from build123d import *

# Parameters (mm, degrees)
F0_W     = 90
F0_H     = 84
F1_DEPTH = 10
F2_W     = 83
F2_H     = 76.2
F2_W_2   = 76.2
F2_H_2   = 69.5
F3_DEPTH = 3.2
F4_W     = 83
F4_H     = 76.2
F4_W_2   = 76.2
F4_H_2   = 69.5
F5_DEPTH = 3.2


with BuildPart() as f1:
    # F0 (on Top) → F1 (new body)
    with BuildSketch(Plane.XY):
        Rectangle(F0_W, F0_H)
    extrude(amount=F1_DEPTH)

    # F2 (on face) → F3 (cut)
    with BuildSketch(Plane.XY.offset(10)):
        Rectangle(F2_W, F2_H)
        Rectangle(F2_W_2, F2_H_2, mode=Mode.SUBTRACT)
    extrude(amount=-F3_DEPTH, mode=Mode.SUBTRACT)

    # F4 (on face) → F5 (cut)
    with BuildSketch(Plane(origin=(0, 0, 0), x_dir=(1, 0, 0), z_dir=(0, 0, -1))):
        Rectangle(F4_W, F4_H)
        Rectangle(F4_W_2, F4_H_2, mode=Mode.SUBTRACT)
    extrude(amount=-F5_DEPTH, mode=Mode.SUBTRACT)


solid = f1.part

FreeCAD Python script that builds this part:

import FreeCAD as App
import Part
import Sketcher
from FreeCAD import Vector

doc = App.newDocument("Part")
body = doc.addObject("PartDesign::Body", "Body")

sketch1 = body.newObject("Sketcher::SketchObject", "Sketch")
sketch1.AttachmentSupport = (doc.getObject("XY_Plane"), [""])
sketch1.MapMode = "FlatFace"
sketch1.addGeometry([
    Part.LineSegment(Vector(-45, 42, 0), Vector(-45, -42, 0)),
    Part.LineSegment(Vector(-45, -42, 0), Vector(45, -42, 0)),
    Part.LineSegment(Vector(45, -42, 0), Vector(45, 42, 0)),
    Part.LineSegment(Vector(45, 42, 0), Vector(-45, 42, 0)),
], False)
sketch1.addConstraint([
    Sketcher.Constraint("Coincident", 0, 2, 1, 1),
    Sketcher.Constraint("Coincident", 1, 2, 2, 1),
    Sketcher.Constraint("Coincident", 2, 2, 3, 1),
    Sketcher.Constraint("Coincident", 3, 2, 0, 1),
    Sketcher.Constraint("Vertical", 0),
    Sketcher.Constraint("Horizontal", 1),
    Sketcher.Constraint("Vertical", 2),
    Sketcher.Constraint("Horizontal", 3),
    Sketcher.Constraint("Symmetric", 0, 2, 2, 2, -1, 1),
    Sketcher.Constraint("DistanceX", 1, 1, 1, 2, 90.0),
    Sketcher.Constraint("DistanceY", 0, 2, 0, 1, 84.0),
])
pad1 = body.newObject("PartDesign::Pad", "Pad")
pad1.Profile = sketch1
pad1.Length = 10

sketch2 = body.newObject("Sketcher::SketchObject", "Sketch001")
sketch2.AttachmentSupport = (doc.getObject("XY_Plane"), [""])
sketch2.MapMode = "FlatFace"
sketch2.AttachmentOffset = App.Placement(Vector(0, 0, 10), App.Rotation())
sketch2.addGeometry([
    Part.LineSegment(Vector(-41.5, 38.1, 0), Vector(-41.5, -38.1, 0)),
    Part.LineSegment(Vector(-41.5, -38.1, 0), Vector(41.5, -38.1, 0)),
    Part.LineSegment(Vector(41.5, -38.1, 0), Vector(41.5, 38.1, 0)),
    Part.LineSegment(Vector(41.5, 38.1, 0), Vector(-41.5, 38.1, 0)),
    Part.LineSegment(Vector(38.1, -34.75, 0), Vector(-38.1, -34.75, 0)),
    Part.LineSegment(Vector(-38.1, -34.75, 0), Vector(-38.1, 34.75, 0)),
    Part.LineSegment(Vector(-38.1, 34.75, 0), Vector(38.1, 34.75, 0)),
    Part.LineSegment(Vector(38.1, 34.75, 0), Vector(38.1, -34.75, 0)),
], False)
sketch2.addConstraint([
    Sketcher.Constraint("Coincident", 0, 2, 1, 1),
    Sketcher.Constraint("Coincident", 1, 2, 2, 1),
    Sketcher.Constraint("Coincident", 2, 2, 3, 1),
    Sketcher.Constraint("Coincident", 3, 2, 0, 1),
    Sketcher.Constraint("Coincident", 4, 2, 5, 1),
    Sketcher.Constraint("Coincident", 5, 2, 6, 1),
    Sketcher.Constraint("Coincident", 6, 2, 7, 1),
    Sketcher.Constraint("Coincident", 7, 2, 4, 1),
    Sketcher.Constraint("Vertical", 0),
    Sketcher.Constraint("Horizontal", 1),
    Sketcher.Constraint("Vertical", 2),
    Sketcher.Constraint("Horizontal", 3),
    Sketcher.Constraint("Horizontal", 4),
    Sketcher.Constraint("Vertical", 5),
    Sketcher.Constraint("Horizontal", 6),
    Sketcher.Constraint("Vertical", 7),
    Sketcher.Constraint("Symmetric", 0, 2, 2, 2, -1, 1),
    Sketcher.Constraint("Symmetric", 4, 2, 6, 2, -1, 1),
    Sketcher.Constraint("Equal", 6, 0),
    Sketcher.Constraint("DistanceX", 1, 1, 1, 2, 83.0),
    Sketcher.Constraint("DistanceX", 4, 2, 4, 1, 76.2),
    Sketcher.Constraint("DistanceY", 5, 1, 5, 2, 69.5),
])
pocket1 = body.newObject("PartDesign::Pocket", "Pocket")
pocket1.Profile = sketch2
pocket1.Length = 3.2

sketch3 = body.newObject("Sketcher::SketchObject", "Sketch002")
sketch3.AttachmentSupport = (doc.getObject("XY_Plane"), [""])
sketch3.MapMode = "FlatFace"
sketch3.addGeometry([
    Part.LineSegment(Vector(-41.5, -38.1, 0), Vector(-41.5, 38.1, 0)),
    Part.LineSegment(Vector(-41.5, 38.1, 0), Vector(41.5, 38.1, 0)),
    Part.LineSegment(Vector(41.5, 38.1, 0), Vector(41.5, -38.1, 0)),
    Part.LineSegment(Vector(41.5, -38.1, 0), Vector(-41.5, -38.1, 0)),
    Part.LineSegment(Vector(38.1, 34.75, 0), Vector(-38.1, 34.75, 0)),
    Part.LineSegment(Vector(-38.1, 34.75, 0), Vector(-38.1, -34.75, 0)),
    Part.LineSegment(Vector(-38.1, -34.75, 0), Vector(38.1, -34.75, 0)),
    Part.LineSegment(Vector(38.1, -34.75, 0), Vector(38.1, 34.75, 0)),
], False)
sketch3.addConstraint([
    Sketcher.Constraint("Coincident", 0, 2, 1, 1),
    Sketcher.Constraint("Coincident", 1, 2, 2, 1),
    Sketcher.Constraint("Coincident", 2, 2, 3, 1),
    Sketcher.Constraint("Coincident", 3, 2, 0, 1),
    Sketcher.Constraint("Coincident", 4, 2, 5, 1),
    Sketcher.Constraint("Coincident", 5, 2, 6, 1),
    Sketcher.Constraint("Coincident", 6, 2, 7, 1),
    Sketcher.Constraint("Coincident", 7, 2, 4, 1),
    Sketcher.Constraint("Vertical", 0),
    Sketcher.Constraint("Horizontal", 1),
    Sketcher.Constraint("Vertical", 2),
    Sketcher.Constraint("Horizontal", 3),
    Sketcher.Constraint("Horizontal", 4),
    Sketcher.Constraint("Vertical", 5),
    Sketcher.Constraint("Horizontal", 6),
    Sketcher.Constraint("Vertical", 7),
    Sketcher.Constraint("Symmetric", 0, 2, 2, 2, -1, 1),
    Sketcher.Constraint("Symmetric", 4, 2, 6, 2, -1, 1),
    Sketcher.Constraint("Equal", 6, 0),
    Sketcher.Constraint("DistanceX", 1, 1, 1, 2, 83.0),
    Sketcher.Constraint("DistanceX", 4, 2, 4, 1, 76.2),
    Sketcher.Constraint("DistanceY", 5, 2, 5, 1, 69.5),
])
pocket2 = body.newObject("PartDesign::Pocket", "Pocket001")
pocket2.Profile = sketch3
pocket2.Length = 3.2
pocket2.Reversed = True

doc.recompute()
